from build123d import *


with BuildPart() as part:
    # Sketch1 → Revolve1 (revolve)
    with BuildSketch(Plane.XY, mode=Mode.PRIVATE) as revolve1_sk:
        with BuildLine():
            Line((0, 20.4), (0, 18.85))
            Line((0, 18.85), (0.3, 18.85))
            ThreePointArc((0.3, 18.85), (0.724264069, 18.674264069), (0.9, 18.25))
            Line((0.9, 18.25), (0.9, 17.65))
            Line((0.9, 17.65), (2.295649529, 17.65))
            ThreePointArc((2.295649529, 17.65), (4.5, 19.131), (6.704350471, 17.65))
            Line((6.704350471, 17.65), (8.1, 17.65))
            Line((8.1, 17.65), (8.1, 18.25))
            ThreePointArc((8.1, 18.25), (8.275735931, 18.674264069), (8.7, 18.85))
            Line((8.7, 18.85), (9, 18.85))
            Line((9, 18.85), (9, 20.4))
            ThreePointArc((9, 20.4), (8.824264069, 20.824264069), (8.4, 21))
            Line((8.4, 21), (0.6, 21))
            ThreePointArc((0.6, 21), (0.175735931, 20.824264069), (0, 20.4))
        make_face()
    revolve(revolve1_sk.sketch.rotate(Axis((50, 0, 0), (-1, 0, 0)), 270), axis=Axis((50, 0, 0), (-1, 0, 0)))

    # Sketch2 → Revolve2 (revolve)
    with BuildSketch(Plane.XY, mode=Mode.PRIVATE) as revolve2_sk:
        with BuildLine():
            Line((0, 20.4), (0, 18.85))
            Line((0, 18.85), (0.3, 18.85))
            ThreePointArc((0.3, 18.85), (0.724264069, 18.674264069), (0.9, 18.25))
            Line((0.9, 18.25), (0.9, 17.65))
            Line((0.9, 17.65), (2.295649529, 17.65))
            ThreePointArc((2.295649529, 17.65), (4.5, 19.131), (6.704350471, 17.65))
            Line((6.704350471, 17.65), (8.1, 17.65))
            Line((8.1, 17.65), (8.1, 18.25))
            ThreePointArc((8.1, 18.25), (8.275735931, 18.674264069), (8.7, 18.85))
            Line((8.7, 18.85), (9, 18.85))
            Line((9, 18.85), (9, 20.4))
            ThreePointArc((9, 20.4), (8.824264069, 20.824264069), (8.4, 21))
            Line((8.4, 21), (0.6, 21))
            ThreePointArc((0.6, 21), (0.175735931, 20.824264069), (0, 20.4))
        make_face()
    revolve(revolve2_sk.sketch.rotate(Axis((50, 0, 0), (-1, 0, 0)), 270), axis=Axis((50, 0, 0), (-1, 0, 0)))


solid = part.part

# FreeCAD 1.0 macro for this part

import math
import FreeCAD as App
import Part
import Sketcher
Q = App.Units.Quantity

doc = App.newDocument("Part")
params = doc.addObject("Spreadsheet::Sheet", "Params")
for row, (alias, value) in enumerate([
    ("sketch1_radius", "0.6 mm"),
    ("sketch1_width", "0.3 mm"),
    ("sketch1_width2", "7.8 mm"),
    ("sketch1_height", "0.6 mm"),
    ("sketch1_height2", "1.55 mm"),
    ("revolution_angle", "360 deg"),
    ("sketch2_radius", "0.6 mm"),
    ("sketch2_width", "0.3 mm"),
    ("sketch2_width2", "7.8 mm"),
    ("sketch2_height", "0.6 mm"),
    ("sketch2_height2", "1.55 mm"),
    ("revolution2_angle", "360 deg"),
], start=1):
    params.set(f"A{row}", alias)
    params.set(f"B{row}", "=" + value)
    params.setAlias(f"B{row}", alias)

body = doc.addObject("PartDesign::Body", "Body")

# Sketch on XY plane
sketch1 = body.newObject("Sketcher::SketchObject", "Sketch")
sketch1.AttachmentSupport = (doc.getObject("XY_Plane"), [""])
sketch1.MapMode = "FlatFace"
sketch1.addGeometry([
    Part.LineSegment(App.Vector(0, 20.4, 0), App.Vector(0, 18.85, 0)),  # 0
    Part.LineSegment(App.Vector(0, 18.85, 0), App.Vector(0.3, 18.85, 0)),  # 1
    Part.ArcOfCircle(Part.Circle(App.Vector(0.3, 18.25, 0), App.Vector(0, 0, 1), 0.6), math.radians(0), math.radians(90)),  # 2
    Part.LineSegment(App.Vector(0.9, 18.25, 0), App.Vector(0.9, 17.65, 0)),  # 3
    Part.LineSegment(App.Vector(0.9, 17.65, 0), App.Vector(2.3, 17.65, 0)),  # 4
    Part.ArcOfCircle(Part.Circle(App.Vector(4.5, 16.75, 0), App.Vector(0, 0, 1), 2.38), math.radians(22), math.radians(158)),  # 5
    Part.LineSegment(App.Vector(6.7, 17.65, 0), App.Vector(8.1, 17.65, 0)),  # 6
    Part.LineSegment(App.Vector(8.1, 17.65, 0), App.Vector(8.1, 18.25, 0)),  # 7
    Part.ArcOfCircle(Part.Circle(App.Vector(8.7, 18.25, 0), App.Vector(0, 0, 1), 0.6), math.radians(90), math.radians(180)),  # 8
    Part.LineSegment(App.Vector(8.7, 18.85, 0), App.Vector(9, 18.85, 0)),  # 9
    Part.LineSegment(App.Vector(9, 18.85, 0), App.Vector(9, 20.4, 0)),  # 10
    Part.ArcOfCircle(Part.Circle(App.Vector(8.4, 20.4, 0), App.Vector(0, 0, 1), 0.6), math.radians(0), math.radians(90)),  # 11
    Part.LineSegment(App.Vector(8.4, 21, 0), App.Vector(0.6, 21, 0)),  # 12
    Part.ArcOfCircle(Part.Circle(App.Vector(0.6, 20.4, 0), App.Vector(0, 0, 1), 0.6), math.radians(90), math.radians(180)),  # 13
], False)
sketch1.addConstraint([
    Sketcher.Constraint("Coincident", 0, 2, 1, 1),
    Sketcher.Constraint("Tangent", 1, 2, 2, 2),
    Sketcher.Constraint("Tangent", 2, 1, 3, 1),
    Sketcher.Constraint("Coincident", 3, 2, 4, 1),
    Sketcher.Constraint("Coincident", 4, 2, 5, 2),
    Sketcher.Constraint("Coincident", 5, 1, 6, 1),
    Sketcher.Constraint("Coincident", 6, 2, 7, 1),
    Sketcher.Constraint("Tangent", 7, 2, 8, 2),
    Sketcher.Constraint("Tangent", 8, 1, 9, 1),
    Sketcher.Constraint("Coincident", 9, 2, 10, 1),
    Sketcher.Constraint("Tangent", 10, 2, 11, 1),
    Sketcher.Constraint("Tangent", 11, 2, 12, 1),
    Sketcher.Constraint("Tangent", 12, 2, 13, 1),
    Sketcher.Constraint("Tangent", 13, 2, 0, 1),
    Sketcher.Constraint("Vertical", 0),
    Sketcher.Constraint("Horizontal", 1),
    Sketcher.Constraint("Vertical", 3),
    Sketcher.Constraint("Horizontal", 4),
    Sketcher.Constraint("Horizontal", 6),
    Sketcher.Constraint("Vertical", 7),
    Sketcher.Constraint("Horizontal", 9),
    Sketcher.Constraint("Vertical", 10),
    Sketcher.Constraint("Horizontal", 12),
    Sketcher.Constraint("Equal", 2, 8),
    Sketcher.Constraint("Equal", 8, 11),
    Sketcher.Constraint("Equal", 11, 13),
    Sketcher.Constraint("PointOnObject", 0, 2, -2),
    Sketcher.Constraint("Horizontal", 2, 3, 8, 3),
    Sketcher.Constraint("Horizontal", 4, 2, 5, 1),
    Sketcher.Constraint("Equal", 4, 6),
    Sketcher.Constraint("Equal", 1, 9),
    Sketcher.Constraint("Radius", 2, Q("0.6 mm")),
    Sketcher.Constraint("DistanceX", 1, 1, 1, 2, Q("0.3 mm")),
    Sketcher.Constraint("DistanceX", 12, 2, 12, 1, Q("7.8 mm")),
    Sketcher.Constraint("DistanceY", 3, 2, 3, 1, Q("0.6 mm")),
    Sketcher.Constraint("DistanceY", -1, 1, 11, 2, Q("21 mm")),
    Sketcher.Constraint("Radius", 5, Q("2.381 mm")),
    Sketcher.Constraint("DistanceY", 0, 2, 0, 1, Q("1.55 mm")),
    Sketcher.Constraint("DistanceY", 5, 3, 2, 3, Q("1.5 mm")),
])
sketch1.setExpression("Constraints[31]", "Params.sketch1_radius")
sketch1.setExpression("Constraints[32]", "Params.sketch1_width")
sketch1.setExpression("Constraints[33]", "Params.sketch1_width2")
sketch1.setExpression("Constraints[34]", "Params.sketch1_height")
sketch1.setExpression("Constraints[37]", "Params.sketch1_height2")
revolution = body.newObject("PartDesign::Revolution", "Revolution")
revolution.Profile = sketch1
revolution.ReferenceAxis = (sketch1, ["H_Axis"])
revolution.setExpression("Angle", "Params.revolution_angle")

# Sketch on XY plane
sketch2 = body.newObject("Sketcher::SketchObject", "Sketch001")
sketch2.AttachmentSupport = (doc.getObject("XY_Plane"), [""])
sketch2.MapMode = "FlatFace"
sketch2.addGeometry([
    Part.LineSegment(App.Vector(0, 20.4, 0), App.Vector(0, 18.85, 0)),  # 0
    Part.LineSegment(App.Vector(0, 18.85, 0), App.Vector(0.3, 18.85, 0)),  # 1
    Part.ArcOfCircle(Part.Circle(App.Vector(0.3, 18.25, 0), App.Vector(0, 0, 1), 0.6), math.radians(0), math.radians(90)),  # 2
    Part.LineSegment(App.Vector(0.9, 18.25, 0), App.Vector(0.9, 17.65, 0)),  # 3
    Part.LineSegment(App.Vector(0.9, 17.65, 0), App.Vector(2.3, 17.65, 0)),  # 4
    Part.ArcOfCircle(Part.Circle(App.Vector(4.5, 16.75, 0), App.Vector(0, 0, 1), 2.38), math.radians(22), math.radians(158)),  # 5
    Part.LineSegment(App.Vector(6.7, 17.65, 0), App.Vector(8.1, 17.65, 0)),  # 6
    Part.LineSegment(App.Vector(8.1, 17.65, 0), App.Vector(8.1, 18.25, 0)),  # 7
    Part.ArcOfCircle(Part.Circle(App.Vector(8.7, 18.25, 0), App.Vector(0, 0, 1), 0.6), math.radians(90), math.radians(180)),  # 8
    Part.LineSegment(App.Vector(8.7, 18.85, 0), App.Vector(9, 18.85, 0)),  # 9
    Part.LineSegment(App.Vector(9, 18.85, 0), App.Vector(9, 20.4, 0)),  # 10
    Part.ArcOfCircle(Part.Circle(App.Vector(8.4, 20.4, 0), App.Vector(0, 0, 1), 0.6), math.radians(0), math.radians(90)),  # 11
    Part.LineSegment(App.Vector(8.4, 21, 0), App.Vector(0.6, 21, 0)),  # 12
    Part.ArcOfCircle(Part.Circle(App.Vector(0.6, 20.4, 0), App.Vector(0, 0, 1), 0.6), math.radians(90), math.radians(180)),  # 13
], False)
sketch2.addConstraint([
    Sketcher.Constraint("Coincident", 0, 2, 1, 1),
    Sketcher.Constraint("Tangent", 1, 2, 2, 2),
    Sketcher.Constraint("Tangent", 2, 1, 3, 1),
    Sketcher.Constraint("Coincident", 3, 2, 4, 1),
    Sketcher.Constraint("Coincident", 4, 2, 5, 2),
    Sketcher.Constraint("Coincident", 5, 1, 6, 1),
    Sketcher.Constraint("Coincident", 6, 2, 7, 1),
    Sketcher.Constraint("Tangent", 7, 2, 8, 2),
    Sketcher.Constraint("Tangent", 8, 1, 9, 1),
    Sketcher.Constraint("Coincident", 9, 2, 10, 1),
    Sketcher.Constraint("Tangent", 10, 2, 11, 1),
    Sketcher.Constraint("Tangent", 11, 2, 12, 1),
    Sketcher.Constraint("Tangent", 12, 2, 13, 1),
    Sketcher.Constraint("Tangent", 13, 2, 0, 1),
    Sketcher.Constraint("Vertical", 0),
    Sketcher.Constraint("Horizontal", 1),
    Sketcher.Constraint("Vertical", 3),
    Sketcher.Constraint("Horizontal", 4),
    Sketcher.Constraint("Horizontal", 6),
    Sketcher.Constraint("Vertical", 7),
    Sketcher.Constraint("Horizontal", 9),
    Sketcher.Constraint("Vertical", 10),
    Sketcher.Constraint("Horizontal", 12),
    Sketcher.Constraint("Equal", 2, 8),
    Sketcher.Constraint("Equal", 8, 11),
    Sketcher.Constraint("Equal", 11, 13),
    Sketcher.Constraint("PointOnObject", 0, 2, -2),
    Sketcher.Constraint("Horizontal", 2, 3, 8, 3),
    Sketcher.Constraint("Horizontal", 4, 2, 5, 1),
    Sketcher.Constraint("Equal", 4, 6),
    Sketcher.Constraint("Equal", 1, 9),
    Sketcher.Constraint("Radius", 2, Q("0.6 mm")),
    Sketcher.Constraint("DistanceX", 1, 1, 1, 2, Q("0.3 mm")),
    Sketcher.Constraint("DistanceX", 12, 2, 12, 1, Q("7.8 mm")),
    Sketcher.Constraint("DistanceY", 3, 2, 3, 1, Q("0.6 mm")),
    Sketcher.Constraint("DistanceY", -1, 1, 11, 2, Q("21 mm")),
    Sketcher.Constraint("Radius", 5, Q("2.381 mm")),
    Sketcher.Constraint("DistanceY", 0, 2, 0, 1, Q("1.55 mm")),
    Sketcher.Constraint("DistanceY", 5, 3, 2, 3, Q("1.5 mm")),
])
sketch2.setExpression("Constraints[31]", "Params.sketch2_radius")
sketch2.setExpression("Constraints[32]", "Params.sketch2_width")
sketch2.setExpression("Constraints[33]", "Params.sketch2_width2")
sketch2.setExpression("Constraints[34]", "Params.sketch2_height")
sketch2.setExpression("Constraints[37]", "Params.sketch2_height2")
revolution2 = body.newObject("PartDesign::Revolution", "Revolution001")
revolution2.Profile = sketch2
revolution2.ReferenceAxis = (sketch2, ["H_Axis"])
revolution2.setExpression("Angle", "Params.revolution2_angle")

doc.recompute()
